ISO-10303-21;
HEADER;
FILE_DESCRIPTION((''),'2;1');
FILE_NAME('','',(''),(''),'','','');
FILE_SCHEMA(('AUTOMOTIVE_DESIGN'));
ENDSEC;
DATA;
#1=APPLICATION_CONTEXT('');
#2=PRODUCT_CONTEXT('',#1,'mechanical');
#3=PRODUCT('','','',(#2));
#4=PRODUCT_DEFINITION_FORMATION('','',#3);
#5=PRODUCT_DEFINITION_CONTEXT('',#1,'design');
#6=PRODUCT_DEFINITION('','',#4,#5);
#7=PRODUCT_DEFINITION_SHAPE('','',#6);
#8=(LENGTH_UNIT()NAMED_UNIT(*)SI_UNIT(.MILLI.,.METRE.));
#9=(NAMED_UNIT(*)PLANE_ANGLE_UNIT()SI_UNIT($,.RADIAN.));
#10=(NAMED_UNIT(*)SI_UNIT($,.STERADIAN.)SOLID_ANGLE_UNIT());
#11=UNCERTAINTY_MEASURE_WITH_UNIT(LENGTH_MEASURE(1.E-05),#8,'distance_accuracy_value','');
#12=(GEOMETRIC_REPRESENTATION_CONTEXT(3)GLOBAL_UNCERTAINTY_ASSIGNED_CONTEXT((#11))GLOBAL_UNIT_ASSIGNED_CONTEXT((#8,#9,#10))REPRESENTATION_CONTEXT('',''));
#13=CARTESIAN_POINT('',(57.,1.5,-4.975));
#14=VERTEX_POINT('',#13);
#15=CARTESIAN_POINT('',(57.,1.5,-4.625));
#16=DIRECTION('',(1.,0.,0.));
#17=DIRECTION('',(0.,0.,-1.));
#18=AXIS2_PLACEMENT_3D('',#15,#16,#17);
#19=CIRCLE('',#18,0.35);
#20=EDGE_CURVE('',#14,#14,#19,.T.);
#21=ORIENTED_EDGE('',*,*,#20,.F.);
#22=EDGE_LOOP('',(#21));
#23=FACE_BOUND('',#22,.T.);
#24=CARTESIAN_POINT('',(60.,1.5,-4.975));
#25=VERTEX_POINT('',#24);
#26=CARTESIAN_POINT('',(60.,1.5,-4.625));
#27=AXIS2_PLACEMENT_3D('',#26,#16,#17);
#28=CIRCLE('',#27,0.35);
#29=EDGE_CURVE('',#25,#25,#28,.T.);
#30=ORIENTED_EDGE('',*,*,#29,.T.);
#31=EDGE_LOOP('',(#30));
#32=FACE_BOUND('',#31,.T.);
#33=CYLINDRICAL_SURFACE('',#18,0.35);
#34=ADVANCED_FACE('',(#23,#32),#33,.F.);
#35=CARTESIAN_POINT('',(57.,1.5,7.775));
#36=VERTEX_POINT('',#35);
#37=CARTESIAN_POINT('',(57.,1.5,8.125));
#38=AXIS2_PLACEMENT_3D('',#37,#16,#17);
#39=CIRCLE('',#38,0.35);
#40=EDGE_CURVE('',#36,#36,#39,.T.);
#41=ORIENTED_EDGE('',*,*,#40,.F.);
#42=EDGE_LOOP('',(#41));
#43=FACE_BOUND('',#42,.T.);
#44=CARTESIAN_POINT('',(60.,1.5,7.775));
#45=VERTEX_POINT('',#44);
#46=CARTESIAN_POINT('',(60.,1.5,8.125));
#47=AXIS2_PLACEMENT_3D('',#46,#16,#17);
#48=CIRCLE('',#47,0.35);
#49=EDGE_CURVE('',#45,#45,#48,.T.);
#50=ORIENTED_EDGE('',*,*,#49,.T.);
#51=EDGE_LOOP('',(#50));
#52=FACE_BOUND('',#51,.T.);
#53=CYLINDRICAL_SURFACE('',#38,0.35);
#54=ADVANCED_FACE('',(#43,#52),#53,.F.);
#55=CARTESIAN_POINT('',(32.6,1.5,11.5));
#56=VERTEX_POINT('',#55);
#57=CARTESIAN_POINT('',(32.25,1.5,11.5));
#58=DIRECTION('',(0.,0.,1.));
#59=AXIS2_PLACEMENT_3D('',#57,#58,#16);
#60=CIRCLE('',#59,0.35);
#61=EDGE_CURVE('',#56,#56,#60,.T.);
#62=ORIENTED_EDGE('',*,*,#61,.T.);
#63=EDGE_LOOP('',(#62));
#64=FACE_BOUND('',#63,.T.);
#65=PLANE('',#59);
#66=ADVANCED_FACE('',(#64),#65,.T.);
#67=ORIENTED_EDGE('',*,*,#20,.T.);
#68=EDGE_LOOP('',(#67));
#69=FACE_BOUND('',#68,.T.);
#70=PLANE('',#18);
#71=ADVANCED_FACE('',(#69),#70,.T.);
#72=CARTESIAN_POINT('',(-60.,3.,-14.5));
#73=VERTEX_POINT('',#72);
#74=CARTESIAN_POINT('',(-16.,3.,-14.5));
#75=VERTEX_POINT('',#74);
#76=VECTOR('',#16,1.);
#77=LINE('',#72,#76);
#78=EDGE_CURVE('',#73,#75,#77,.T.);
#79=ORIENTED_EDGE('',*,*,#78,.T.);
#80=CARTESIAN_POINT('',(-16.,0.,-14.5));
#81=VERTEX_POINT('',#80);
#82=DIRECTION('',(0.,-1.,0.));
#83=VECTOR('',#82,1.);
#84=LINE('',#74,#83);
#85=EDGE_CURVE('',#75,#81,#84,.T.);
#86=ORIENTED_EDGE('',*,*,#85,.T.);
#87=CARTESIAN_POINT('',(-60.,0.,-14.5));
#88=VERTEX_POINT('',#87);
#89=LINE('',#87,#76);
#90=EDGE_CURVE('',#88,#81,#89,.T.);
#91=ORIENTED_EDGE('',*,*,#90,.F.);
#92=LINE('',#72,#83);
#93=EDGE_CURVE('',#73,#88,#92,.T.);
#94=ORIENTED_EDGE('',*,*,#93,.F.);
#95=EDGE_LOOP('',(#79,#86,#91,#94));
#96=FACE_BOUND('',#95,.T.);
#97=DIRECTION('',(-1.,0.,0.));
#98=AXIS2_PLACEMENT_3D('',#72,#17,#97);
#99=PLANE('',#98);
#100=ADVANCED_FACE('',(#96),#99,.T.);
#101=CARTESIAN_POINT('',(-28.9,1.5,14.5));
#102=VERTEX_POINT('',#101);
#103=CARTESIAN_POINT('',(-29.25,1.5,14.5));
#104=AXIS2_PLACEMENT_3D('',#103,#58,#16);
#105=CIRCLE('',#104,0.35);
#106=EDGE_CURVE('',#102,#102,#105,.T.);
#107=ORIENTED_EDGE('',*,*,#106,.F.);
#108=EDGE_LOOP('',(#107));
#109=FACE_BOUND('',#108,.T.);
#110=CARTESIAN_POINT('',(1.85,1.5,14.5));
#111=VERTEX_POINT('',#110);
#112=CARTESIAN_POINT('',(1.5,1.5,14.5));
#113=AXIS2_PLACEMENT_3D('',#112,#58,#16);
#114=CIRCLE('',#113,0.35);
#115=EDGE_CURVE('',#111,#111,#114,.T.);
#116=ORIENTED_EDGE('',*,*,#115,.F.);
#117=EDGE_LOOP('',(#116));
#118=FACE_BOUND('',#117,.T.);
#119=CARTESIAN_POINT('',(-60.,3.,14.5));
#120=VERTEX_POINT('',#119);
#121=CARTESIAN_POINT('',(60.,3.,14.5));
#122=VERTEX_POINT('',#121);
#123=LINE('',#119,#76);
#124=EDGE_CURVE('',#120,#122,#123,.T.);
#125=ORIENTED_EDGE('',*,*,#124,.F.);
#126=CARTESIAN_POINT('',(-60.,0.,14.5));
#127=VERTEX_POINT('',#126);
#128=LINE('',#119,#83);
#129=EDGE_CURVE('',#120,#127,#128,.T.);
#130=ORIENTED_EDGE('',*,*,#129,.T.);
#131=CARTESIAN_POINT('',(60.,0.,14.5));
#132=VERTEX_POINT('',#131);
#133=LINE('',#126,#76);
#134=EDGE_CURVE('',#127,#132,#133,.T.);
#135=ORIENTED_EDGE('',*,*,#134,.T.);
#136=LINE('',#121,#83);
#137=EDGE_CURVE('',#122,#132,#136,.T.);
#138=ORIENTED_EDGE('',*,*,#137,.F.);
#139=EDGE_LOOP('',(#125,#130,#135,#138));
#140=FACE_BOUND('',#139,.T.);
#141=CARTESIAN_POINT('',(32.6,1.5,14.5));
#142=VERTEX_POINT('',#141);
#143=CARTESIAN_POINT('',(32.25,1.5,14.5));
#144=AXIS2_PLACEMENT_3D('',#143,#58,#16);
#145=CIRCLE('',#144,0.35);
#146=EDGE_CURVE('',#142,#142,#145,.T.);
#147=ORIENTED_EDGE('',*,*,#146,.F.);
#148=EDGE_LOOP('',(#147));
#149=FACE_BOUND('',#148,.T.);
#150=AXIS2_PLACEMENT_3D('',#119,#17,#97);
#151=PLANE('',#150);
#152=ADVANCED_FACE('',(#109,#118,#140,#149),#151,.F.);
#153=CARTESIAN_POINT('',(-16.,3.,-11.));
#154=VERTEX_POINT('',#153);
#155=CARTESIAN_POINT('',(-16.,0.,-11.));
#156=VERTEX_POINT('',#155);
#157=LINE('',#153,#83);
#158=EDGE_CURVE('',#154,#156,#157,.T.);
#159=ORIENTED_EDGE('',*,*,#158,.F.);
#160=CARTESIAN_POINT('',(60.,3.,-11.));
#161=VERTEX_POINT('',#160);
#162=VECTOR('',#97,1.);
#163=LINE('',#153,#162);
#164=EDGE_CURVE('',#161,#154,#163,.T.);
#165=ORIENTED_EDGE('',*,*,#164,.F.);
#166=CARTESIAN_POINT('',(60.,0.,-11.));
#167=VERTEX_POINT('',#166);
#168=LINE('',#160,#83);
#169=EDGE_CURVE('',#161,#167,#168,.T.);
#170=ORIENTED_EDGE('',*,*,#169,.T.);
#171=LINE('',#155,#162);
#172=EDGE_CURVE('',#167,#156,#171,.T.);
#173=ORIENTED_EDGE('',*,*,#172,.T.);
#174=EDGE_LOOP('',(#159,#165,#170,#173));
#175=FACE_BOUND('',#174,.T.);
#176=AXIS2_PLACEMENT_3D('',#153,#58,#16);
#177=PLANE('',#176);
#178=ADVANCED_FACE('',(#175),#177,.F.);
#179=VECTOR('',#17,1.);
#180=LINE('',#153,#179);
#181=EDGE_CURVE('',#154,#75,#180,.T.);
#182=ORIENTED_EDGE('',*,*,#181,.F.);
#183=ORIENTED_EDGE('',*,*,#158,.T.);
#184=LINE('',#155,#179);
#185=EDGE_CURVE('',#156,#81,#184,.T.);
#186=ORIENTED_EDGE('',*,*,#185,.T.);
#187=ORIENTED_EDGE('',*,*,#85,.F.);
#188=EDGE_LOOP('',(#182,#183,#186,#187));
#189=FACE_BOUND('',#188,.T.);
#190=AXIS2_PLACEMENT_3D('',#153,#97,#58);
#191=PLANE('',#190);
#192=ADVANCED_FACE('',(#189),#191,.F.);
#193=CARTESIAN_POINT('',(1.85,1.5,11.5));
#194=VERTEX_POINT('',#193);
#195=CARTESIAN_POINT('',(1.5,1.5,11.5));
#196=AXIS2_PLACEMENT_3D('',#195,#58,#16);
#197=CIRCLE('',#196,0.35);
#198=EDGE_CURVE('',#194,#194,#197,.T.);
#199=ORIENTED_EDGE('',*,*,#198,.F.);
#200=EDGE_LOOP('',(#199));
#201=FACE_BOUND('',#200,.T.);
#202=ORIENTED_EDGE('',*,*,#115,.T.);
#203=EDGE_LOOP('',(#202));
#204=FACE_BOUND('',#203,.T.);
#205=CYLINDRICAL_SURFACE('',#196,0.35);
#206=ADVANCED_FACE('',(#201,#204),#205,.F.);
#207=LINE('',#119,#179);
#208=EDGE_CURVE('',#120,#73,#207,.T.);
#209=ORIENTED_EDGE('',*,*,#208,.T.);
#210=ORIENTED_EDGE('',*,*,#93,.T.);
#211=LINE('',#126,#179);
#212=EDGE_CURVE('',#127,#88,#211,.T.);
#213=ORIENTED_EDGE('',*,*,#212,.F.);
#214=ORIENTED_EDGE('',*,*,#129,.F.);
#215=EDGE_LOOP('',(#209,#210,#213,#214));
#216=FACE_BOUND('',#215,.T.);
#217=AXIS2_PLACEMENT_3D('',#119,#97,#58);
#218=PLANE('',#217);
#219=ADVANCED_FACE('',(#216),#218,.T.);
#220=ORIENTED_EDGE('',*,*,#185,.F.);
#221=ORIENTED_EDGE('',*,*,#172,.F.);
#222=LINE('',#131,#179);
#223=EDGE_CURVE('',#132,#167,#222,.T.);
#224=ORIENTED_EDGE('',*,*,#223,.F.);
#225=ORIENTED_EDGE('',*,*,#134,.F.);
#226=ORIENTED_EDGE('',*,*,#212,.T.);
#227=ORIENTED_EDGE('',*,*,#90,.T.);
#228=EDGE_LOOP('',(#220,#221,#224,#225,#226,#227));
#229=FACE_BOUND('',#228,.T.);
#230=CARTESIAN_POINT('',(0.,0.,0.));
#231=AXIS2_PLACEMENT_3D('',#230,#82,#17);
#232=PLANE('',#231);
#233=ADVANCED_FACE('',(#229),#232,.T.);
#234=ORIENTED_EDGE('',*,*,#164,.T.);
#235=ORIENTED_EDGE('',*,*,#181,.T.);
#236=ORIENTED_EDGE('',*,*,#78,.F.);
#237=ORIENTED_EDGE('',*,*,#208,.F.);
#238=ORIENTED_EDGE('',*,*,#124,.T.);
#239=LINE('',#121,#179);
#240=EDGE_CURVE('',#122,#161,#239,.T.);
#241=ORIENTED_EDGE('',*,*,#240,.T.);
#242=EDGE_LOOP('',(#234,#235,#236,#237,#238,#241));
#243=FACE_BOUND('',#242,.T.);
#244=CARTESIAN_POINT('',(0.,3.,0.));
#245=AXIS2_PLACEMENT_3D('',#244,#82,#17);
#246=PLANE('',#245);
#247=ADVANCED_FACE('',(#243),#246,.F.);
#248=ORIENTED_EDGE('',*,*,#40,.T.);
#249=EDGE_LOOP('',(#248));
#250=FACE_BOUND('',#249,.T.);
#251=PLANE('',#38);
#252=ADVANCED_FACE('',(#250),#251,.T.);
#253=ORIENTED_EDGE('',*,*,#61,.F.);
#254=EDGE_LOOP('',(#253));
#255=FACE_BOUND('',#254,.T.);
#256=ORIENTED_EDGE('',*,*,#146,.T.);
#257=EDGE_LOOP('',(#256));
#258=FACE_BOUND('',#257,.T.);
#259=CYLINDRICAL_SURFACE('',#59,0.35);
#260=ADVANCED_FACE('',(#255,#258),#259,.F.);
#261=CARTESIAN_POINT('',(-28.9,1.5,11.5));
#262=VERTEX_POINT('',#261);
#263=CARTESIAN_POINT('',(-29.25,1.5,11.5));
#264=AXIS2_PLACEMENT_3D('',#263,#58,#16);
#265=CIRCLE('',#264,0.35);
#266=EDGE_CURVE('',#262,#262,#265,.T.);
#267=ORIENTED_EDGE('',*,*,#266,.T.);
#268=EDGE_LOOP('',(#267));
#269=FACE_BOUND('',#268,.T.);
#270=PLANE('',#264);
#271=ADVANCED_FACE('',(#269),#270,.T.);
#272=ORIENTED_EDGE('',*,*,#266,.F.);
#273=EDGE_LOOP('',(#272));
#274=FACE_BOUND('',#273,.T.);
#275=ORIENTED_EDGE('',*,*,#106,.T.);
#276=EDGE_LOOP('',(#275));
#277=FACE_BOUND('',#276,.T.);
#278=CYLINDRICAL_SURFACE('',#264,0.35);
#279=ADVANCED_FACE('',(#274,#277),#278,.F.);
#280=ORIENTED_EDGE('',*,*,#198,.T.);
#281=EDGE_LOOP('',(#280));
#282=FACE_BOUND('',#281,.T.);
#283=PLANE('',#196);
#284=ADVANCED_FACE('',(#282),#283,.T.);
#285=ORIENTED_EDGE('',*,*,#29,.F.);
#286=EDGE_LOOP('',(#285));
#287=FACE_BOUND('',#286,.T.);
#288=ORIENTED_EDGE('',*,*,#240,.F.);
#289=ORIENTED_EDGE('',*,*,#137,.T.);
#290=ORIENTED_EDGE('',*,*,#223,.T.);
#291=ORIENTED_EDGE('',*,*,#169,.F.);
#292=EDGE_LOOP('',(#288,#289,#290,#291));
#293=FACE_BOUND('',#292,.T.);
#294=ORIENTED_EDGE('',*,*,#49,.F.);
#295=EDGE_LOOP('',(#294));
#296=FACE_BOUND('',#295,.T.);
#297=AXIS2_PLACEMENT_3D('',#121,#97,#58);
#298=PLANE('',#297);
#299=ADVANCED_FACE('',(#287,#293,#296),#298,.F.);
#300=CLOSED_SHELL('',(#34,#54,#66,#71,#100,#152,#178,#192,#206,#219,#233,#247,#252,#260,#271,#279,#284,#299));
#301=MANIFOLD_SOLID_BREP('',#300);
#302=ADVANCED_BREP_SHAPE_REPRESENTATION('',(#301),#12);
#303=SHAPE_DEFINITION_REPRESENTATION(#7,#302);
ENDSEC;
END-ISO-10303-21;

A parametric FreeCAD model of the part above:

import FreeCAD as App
import Part
import Sketcher

V = App.Vector

doc = App.newDocument("Part")
body = doc.addObject("PartDesign::Body", "Body")

sketch1 = body.newObject("Sketcher::SketchObject", "Sketch")
sketch1.AttachmentSupport = (doc.getObject("XZ_Plane"), [""])
sketch1.MapMode = "FlatFace"
sketch1.addGeometry([
    Part.LineSegment(V(-60, -14, 0), V(-60, 14, 0)),
    Part.LineSegment(V(-60, 14, 0), V(60, 14, 0)),
    Part.LineSegment(V(60, 14, 0), V(60, -14, 0)),
    Part.LineSegment(V(60, -14, 0), V(-60, -14, 0)),
], False)
sketch1.addConstraint([
    Sketcher.Constraint("Coincident", 0, 2, 1, 1),
    Sketcher.Constraint("Coincident", 1, 2, 2, 1),
    Sketcher.Constraint("Coincident", 2, 2, 3, 1),
    Sketcher.Constraint("Coincident", 3, 2, 0, 1),
    Sketcher.Constraint("Vertical", 0),
    Sketcher.Constraint("Horizontal", 1),
    Sketcher.Constraint("Vertical", 2),
    Sketcher.Constraint("Horizontal", 3),
    Sketcher.Constraint("Symmetric", 0, 2, 2, 2, -1, 1),
    Sketcher.Constraint("DistanceX", 1, 1, 1, 2, 120.0),
    Sketcher.Constraint("DistanceY", 0, 1, 0, 2, 29.0),
])
pad1 = body.newObject("PartDesign::Pad", "Pad")
pad1.Profile = sketch1
pad1.Length = 3
pad1.Reversed = True

sketch2 = body.newObject("Sketcher::SketchObject", "Sketch001")
sketch2.AttachmentSupport = (doc.getObject("XZ_Plane"), [""])
sketch2.MapMode = "FlatFace"
sketch2.addGeometry([
    Part.LineSegment(V(-16, -11, 0), V(-16, -14.5, 0)),
    Part.LineSegment(V(-16, -14.5, 0), V(60, -14.5, 0)),
    Part.LineSegment(V(60, -14.5, 0), V(60, -11, 0)),
    Part.LineSegment(V(60, -11, 0), V(-16, -11, 0)),
], False)
sketch2.addConstraint([
    Sketcher.Constraint("Coincident", 0, 2, 1, 1),
    Sketcher.Constraint("Coincident", 1, 2, 2, 1),
    Sketcher.Constraint("Coincident", 2, 2, 3, 1),
    Sketcher.Constraint("Coincident", 3, 2, 0, 1),
    Sketcher.Constraint("Vertical", 0),
    Sketcher.Constraint("Horizontal", 1),
    Sketcher.Constraint("Vertical", 2),
    Sketcher.Constraint("Horizontal", 3),
    Sketcher.Constraint("DistanceX", 1, 1, 1, 2, 76.0),
    Sketcher.Constraint("DistanceY", 0, 2, 0, 1, 3.5),
    Sketcher.Constraint("DistanceX", 0, 2, -1, 1, 16.0),
    Sketcher.Constraint("DistanceY", 2, 2, -1, 1, 11.0),
])
pocket1 = body.newObject("PartDesign::Pocket", "Pocket")
pocket1.Profile = sketch2
pocket1.Type = "ThroughAll"

sketch3 = body.newObject("Sketcher::SketchObject", "Sketch002")
sketch3.AttachmentSupport = (doc.getObject("YZ_Plane"), [""])
sketch3.MapMode = "FlatFace"
sketch3.AttachmentOffset = App.Placement(V(0, 0, 60), App.Rotation())
sketch3.addGeometry([
    Part.Circle(V(1.5, 8.12, 0), V(0, 0, 1), 0.35),
    Part.Circle(V(1.5, -4.62, 0), V(0, 0, 1), 0.35),
], False)
sketch3.addConstraint([
    Sketcher.Constraint("Equal", 0, 1),
    Sketcher.Constraint("Vertical", 0, 3, 1, 3),
    Sketcher.Constraint("Diameter", 0, 0.7),
    Sketcher.Constraint("DistanceX", -1, 1, 0, 3, 1.5),
    Sketcher.Constraint("DistanceY", 1, 3, 0, 3, 12.75),
    Sketcher.Constraint("DistanceY", -1, 1, 0, 3, 8.125),
])
pocket2 = body.newObject("PartDesign::Pocket", "Pocket001")
pocket2.Profile = sketch3
pocket2.Length = 3

sketch4 = body.newObject("Sketcher::SketchObject", "Sketch003")
sketch4.AttachmentSupport = (doc.getObject("XY_Plane"), [""])
sketch4.MapMode = "FlatFace"
sketch4.AttachmentOffset = App.Placement(V(0, 0, 14.5), App.Rotation())
sketch4.addGeometry([
    Part.Circle(V(-29.25, 1.5, 0), V(0, 0, 1), 0.35),
    Part.Circle(V(1.5, 1.5, 0), V(0, 0, 1), 0.35),
    Part.Circle(V(32.25, 1.5, 0), V(0, 0, 1), 0.35),
], False)
sketch4.addConstraint([
    Sketcher.Constraint("Equal", 0, 1),
    Sketcher.Constraint("Equal", 1, 2),
    Sketcher.Constraint("Horizontal", 0, 3, 1, 3),
    Sketcher.Constraint("Horizontal", 1, 3, 2, 3),
    Sketcher.Constraint("Diameter", 0, 0.7),
    Sketcher.Constraint("DistanceY", -1, 1, 0, 3, 1.5),
    Sketcher.Constraint("DistanceX", -1, 1, 1, 3, 1.5),
    Sketcher.Constraint("DistanceX", 0, 3, 2, 3, 61.5),
    Sketcher.Constraint("DistanceX", 0, 3, -1, 1, 29.25),
])
pocket3 = body.newObject("PartDesign::Pocket", "Pocket002")
pocket3.Profile = sketch4
pocket3.Length = 3

doc.recompute()
